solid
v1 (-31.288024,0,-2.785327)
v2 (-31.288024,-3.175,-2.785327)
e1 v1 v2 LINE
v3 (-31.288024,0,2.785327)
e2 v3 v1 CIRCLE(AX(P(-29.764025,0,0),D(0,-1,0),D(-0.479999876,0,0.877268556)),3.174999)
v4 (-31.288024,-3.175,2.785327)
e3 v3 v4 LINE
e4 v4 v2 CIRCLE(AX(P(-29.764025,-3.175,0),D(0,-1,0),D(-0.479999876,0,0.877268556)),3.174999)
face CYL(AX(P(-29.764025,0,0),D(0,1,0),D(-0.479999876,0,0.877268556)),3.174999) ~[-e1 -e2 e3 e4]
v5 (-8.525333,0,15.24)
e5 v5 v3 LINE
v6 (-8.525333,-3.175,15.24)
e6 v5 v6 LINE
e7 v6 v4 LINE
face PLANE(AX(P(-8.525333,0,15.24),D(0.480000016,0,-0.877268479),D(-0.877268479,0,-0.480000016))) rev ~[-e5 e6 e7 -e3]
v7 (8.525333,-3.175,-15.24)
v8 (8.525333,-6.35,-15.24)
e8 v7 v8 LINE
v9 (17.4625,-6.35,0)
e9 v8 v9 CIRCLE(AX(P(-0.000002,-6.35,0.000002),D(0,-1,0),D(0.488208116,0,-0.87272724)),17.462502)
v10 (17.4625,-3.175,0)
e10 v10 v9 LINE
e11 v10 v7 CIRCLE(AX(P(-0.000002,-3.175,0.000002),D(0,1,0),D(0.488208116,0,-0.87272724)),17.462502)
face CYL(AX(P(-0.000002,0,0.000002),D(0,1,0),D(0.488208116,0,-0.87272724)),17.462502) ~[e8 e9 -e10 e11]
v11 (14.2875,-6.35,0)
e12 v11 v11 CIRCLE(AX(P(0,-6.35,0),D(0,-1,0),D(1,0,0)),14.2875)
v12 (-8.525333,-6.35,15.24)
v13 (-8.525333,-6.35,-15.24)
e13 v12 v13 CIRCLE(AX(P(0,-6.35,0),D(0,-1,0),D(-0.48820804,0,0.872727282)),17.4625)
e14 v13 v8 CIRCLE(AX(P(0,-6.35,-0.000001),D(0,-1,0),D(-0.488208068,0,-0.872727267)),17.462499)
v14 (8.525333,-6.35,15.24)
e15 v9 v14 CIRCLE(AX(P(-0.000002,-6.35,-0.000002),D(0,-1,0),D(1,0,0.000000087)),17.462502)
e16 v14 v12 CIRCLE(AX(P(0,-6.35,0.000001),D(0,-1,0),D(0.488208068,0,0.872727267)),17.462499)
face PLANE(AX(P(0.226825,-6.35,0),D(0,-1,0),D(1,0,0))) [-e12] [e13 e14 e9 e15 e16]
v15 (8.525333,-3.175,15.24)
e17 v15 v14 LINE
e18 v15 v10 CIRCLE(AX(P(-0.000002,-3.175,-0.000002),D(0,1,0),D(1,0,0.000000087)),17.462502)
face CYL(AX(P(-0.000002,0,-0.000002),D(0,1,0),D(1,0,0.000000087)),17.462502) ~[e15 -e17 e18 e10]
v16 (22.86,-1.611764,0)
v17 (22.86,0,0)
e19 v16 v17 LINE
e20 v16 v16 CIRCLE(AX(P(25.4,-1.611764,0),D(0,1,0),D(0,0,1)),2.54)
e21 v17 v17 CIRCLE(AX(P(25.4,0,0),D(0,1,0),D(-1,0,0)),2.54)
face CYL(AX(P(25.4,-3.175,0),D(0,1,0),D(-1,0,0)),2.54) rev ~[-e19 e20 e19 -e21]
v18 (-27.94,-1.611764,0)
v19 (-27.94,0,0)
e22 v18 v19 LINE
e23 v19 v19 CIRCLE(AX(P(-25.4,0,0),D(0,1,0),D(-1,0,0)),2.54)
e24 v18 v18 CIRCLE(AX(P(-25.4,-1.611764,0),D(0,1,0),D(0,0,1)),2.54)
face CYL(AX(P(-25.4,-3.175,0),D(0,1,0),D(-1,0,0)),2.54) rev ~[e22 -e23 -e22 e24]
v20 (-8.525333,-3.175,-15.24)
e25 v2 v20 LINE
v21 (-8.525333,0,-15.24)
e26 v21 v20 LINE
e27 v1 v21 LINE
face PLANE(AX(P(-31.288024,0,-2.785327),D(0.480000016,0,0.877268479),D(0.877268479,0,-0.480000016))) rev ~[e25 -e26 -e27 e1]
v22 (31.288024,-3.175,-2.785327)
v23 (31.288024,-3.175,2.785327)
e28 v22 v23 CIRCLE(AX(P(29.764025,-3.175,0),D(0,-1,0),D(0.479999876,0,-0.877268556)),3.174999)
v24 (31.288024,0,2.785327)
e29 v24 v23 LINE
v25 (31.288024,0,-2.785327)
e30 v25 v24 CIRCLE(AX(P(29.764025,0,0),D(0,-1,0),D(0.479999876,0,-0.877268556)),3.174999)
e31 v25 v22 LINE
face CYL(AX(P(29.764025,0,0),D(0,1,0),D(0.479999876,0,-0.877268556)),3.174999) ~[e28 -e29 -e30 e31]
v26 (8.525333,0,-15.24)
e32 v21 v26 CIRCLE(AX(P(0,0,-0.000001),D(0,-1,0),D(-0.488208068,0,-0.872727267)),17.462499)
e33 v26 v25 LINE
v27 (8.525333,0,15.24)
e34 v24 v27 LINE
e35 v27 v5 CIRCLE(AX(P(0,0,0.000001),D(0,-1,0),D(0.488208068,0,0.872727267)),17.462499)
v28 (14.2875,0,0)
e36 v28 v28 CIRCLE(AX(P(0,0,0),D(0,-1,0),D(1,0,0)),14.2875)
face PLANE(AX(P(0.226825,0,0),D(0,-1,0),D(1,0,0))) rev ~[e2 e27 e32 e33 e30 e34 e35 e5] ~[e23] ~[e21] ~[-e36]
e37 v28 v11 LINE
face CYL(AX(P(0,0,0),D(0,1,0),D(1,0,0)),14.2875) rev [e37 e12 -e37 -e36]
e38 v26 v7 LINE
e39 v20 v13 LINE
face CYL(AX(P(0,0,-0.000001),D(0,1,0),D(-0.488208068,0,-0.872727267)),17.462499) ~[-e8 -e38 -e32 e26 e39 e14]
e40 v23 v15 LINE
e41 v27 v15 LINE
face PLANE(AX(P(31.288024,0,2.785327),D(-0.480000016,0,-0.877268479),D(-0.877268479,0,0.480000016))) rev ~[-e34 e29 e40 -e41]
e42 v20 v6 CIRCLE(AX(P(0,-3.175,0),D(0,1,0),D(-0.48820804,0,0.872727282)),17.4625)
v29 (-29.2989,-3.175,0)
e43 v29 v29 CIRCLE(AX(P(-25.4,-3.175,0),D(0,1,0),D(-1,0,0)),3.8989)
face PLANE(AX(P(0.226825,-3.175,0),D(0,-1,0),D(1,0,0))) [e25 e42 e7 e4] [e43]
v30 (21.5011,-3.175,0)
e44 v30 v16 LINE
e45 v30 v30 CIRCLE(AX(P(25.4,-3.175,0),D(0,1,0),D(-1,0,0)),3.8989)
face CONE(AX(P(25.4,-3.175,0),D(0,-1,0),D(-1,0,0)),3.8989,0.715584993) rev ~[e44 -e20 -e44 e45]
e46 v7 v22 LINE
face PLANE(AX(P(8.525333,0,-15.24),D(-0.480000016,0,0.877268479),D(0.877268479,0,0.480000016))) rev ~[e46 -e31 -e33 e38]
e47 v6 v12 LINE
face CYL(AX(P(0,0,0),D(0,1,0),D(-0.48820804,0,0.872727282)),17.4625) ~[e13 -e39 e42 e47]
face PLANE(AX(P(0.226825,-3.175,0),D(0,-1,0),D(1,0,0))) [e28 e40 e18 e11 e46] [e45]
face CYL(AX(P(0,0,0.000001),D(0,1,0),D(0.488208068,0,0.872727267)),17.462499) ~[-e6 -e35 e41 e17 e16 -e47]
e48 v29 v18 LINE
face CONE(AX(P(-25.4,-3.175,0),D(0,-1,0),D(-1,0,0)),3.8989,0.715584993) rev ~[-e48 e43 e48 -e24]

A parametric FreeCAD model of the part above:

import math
import FreeCAD as App
import Part
import Sketcher
Q = App.Units.Quantity

doc = App.newDocument("Part")
body = doc.addObject("PartDesign::Body", "Body")

# Sketch on XZ plane
sketch1 = doc.addObject("Sketcher::SketchObject", "Sketch")
body.addObject(sketch1)
sketch1.AttachmentSupport = (doc.XZ_Plane, [""])
sketch1.MapMode = "FlatFace"
sketch1.addGeometry([
    Part.ArcOfCircle(Part.Circle(App.Vector(0, 0, 0), App.Vector(0, 0, 1), 17.5), math.radians(-119), math.radians(-61)),  # 0
    Part.LineSegment(App.Vector(8.5, -15.2, 0), App.Vector(31.3, -2.8, 0)),  # 1
    Part.ArcOfCircle(Part.Circle(App.Vector(29.8, 0, 0), App.Vector(0, 0, 1), 3.2), math.radians(-61), math.radians(61)),  # 2
    Part.LineSegment(App.Vector(31.3, 2.8, 0), App.Vector(8.5, 15.2, 0)),  # 3
    Part.ArcOfCircle(Part.Circle(App.Vector(0, 0, 0), App.Vector(0, 0, 1), 17.5), math.radians(61), math.radians(119)),  # 4
    Part.LineSegment(App.Vector(-8.5, 15.2, 0), App.Vector(-31.3, 2.8, 0)),  # 5
    Part.ArcOfCircle(Part.Circle(App.Vector(-29.8, 0, 0), App.Vector(0, 0, 1), 3.2), math.radians(119), math.radians(241)),  # 6
    Part.LineSegment(App.Vector(-31.3, -2.8, 0), App.Vector(-8.5, -15.2, 0)),  # 7
    Part.Circle(App.Vector(0, 0, 0), App.Vector(0, 0, 1), 14.3),  # 8
], False)
sketch1.addConstraint([
    Sketcher.Constraint("Coincident", 0, 2, 1, 1),
    Sketcher.Constraint("Tangent", 1, 2, 2, 1),
    Sketcher.Constraint("Tangent", 2, 2, 3, 1),
    Sketcher.Constraint("Coincident", 3, 2, 4, 1),
    Sketcher.Constraint("Coincident", 4, 2, 5, 1),
    Sketcher.Constraint("Tangent", 5, 2, 6, 1),
    Sketcher.Constraint("Tangent", 6, 2, 7, 1),
    Sketcher.Constraint("Coincident", 7, 2, 0, 1),
    Sketcher.Constraint("Coincident", 0, 3, -1, 1),
    Sketcher.Constraint("Coincident", 4, 3, -1, 1),
    Sketcher.Constraint("Coincident", 8, 3, -1, 1),
    Sketcher.Constraint("Equal", 0, 4),
    Sketcher.Constraint("Equal", 2, 6),
    Sketcher.Constraint("Symmetric", 2, 3, 6, 3, -1, 1),
    Sketcher.Constraint("Symmetric", 2, 2, 5, 2, -2),
    Sketcher.Constraint("Parallel", 1, 5),
    Sketcher.Constraint("Parallel", 3, 7),
    Sketcher.Constraint("Diameter", 8, Q("1.125 in")),
    Sketcher.Constraint("Radius", 0, Q("0.6875 in")),
    Sketcher.Constraint("Radius", 2, Q("0.125 in")),
    Sketcher.Constraint("DistanceY", 0, 2, -1, 1, Q("0.6 in")),
    Sketcher.Constraint("DistanceX", 2, 3, 1, 2, Q("0.06 in")),
])
pad1 = doc.addObject("PartDesign::Pad", "Pad")
body.addObject(pad1)
pad1.Profile = sketch1
pad1.Length = Q("0.125 in")

# Sketch on XZ plane
sketch2 = doc.addObject("Sketcher::SketchObject", "Sketch001")
body.addObject(sketch2)
sketch2.AttachmentSupport = (doc.XZ_Plane, [""])
sketch2.MapMode = "FlatFace"
sketch2.addGeometry([
    Part.ArcOfCircle(Part.Circle(App.Vector(0, 0, 0), App.Vector(0, 0, 1), 17), math.radians(-61), math.radians(0)),  # 0
    Part.ArcOfCircle(Part.Circle(App.Vector(0, 0, 0), App.Vector(0, 0, 1), 17), math.radians(0), math.radians(61)),  # 1
    Part.ArcOfCircle(Part.Circle(App.Vector(0, 0, 0), App.Vector(0, 0, 1), 17), math.radians(61), math.radians(119)),  # 2
    Part.ArcOfCircle(Part.Circle(App.Vector(0, 0, 0), App.Vector(0, 0, 1), 17), math.radians(119), math.radians(241)),  # 3
    Part.ArcOfCircle(Part.Circle(App.Vector(0, 0, 0), App.Vector(0, 0, 1), 17), math.radians(-119), math.radians(-61)),  # 4
    Part.Circle(App.Vector(0, 0, 0), App.Vector(0, 0, 1), 14),  # 5
], False)
sketch2.addConstraint([
    Sketcher.Constraint("Tangent", 0, 2, 1, 1),
    Sketcher.Constraint("Tangent", 1, 2, 2, 1),
    Sketcher.Constraint("Tangent", 2, 2, 3, 1),
    Sketcher.Constraint("Tangent", 3, 2, 4, 1),
    Sketcher.Constraint("Tangent", 4, 2, 0, 1),
    Sketcher.Constraint("Coincident", 0, 3, -1, 1),
    Sketcher.Constraint("Coincident", 2, 3, -1, 1),
    Sketcher.Constraint("Coincident", 5, 3, -1, 1),
    Sketcher.Constraint("PointOnObject", 0, 2, -1),
    Sketcher.Constraint("Horizontal", 1, 2, 2, 2),
    Sketcher.Constraint("Horizontal", 3, 2, 4, 2),
    Sketcher.Constraint("Vertical", 2, 2, 3, 2),
    Sketcher.Constraint("Diameter", 5, Q("1.125 in")),
    Sketcher.Constraint("Radius", 0, Q("0.6875001 in")),
    Sketcher.Constraint("DistanceY", -1, 1, 1, 2, Q("0.6 in")),
])
pad2 = doc.addObject("PartDesign::Pad", "Pad001")
body.addObject(pad2)
pad2.Profile = sketch2
pad2.Length = Q("0.25 in")

# Sketch on XZ plane
sketch3 = doc.addObject("Sketcher::SketchObject", "Sketch002")
body.addObject(sketch3)
sketch3.AttachmentSupport = (doc.XZ_Plane, [""])
sketch3.MapMode = "FlatFace"
sketch3.AttachmentOffset = App.Placement(App.Vector(0, 0, 0.125 * 25.4), App.Rotation())
sketch3.addGeometry([
    Part.Circle(App.Vector(-25.4, 0, 0), App.Vector(0, 0, 1), 2.5),
    Part.Circle(App.Vector(25.4, 0, 0), App.Vector(0, 0, 1), 2.5),
], False)
sketch3.addConstraint([
    Sketcher.Constraint("Equal", 0, 1),
    Sketcher.Constraint("Symmetric", 0, 3, 1, 3, -1, 1),
    Sketcher.Constraint("PointOnObject", 0, 3, -1),
    Sketcher.Constraint("Diameter", 0, Q("0.2 in")),
    Sketcher.Constraint("DistanceX", 0, 3, -1, 1, Q("1 in")),
])
doc.recompute()
hole = doc.addObject("PartDesign::Hole", "Hole")
body.addObject(hole)
hole.Profile = sketch3
hole.ThreadType = "None"
hole.Diameter = Q("0.2 in")
hole.DepthType = "ThroughAll"
hole.HoleCutType = "Countersink"
hole.HoleCutDiameter = Q("0.307 in")
hole.HoleCutCountersinkAngle = 82

doc.recompute()
